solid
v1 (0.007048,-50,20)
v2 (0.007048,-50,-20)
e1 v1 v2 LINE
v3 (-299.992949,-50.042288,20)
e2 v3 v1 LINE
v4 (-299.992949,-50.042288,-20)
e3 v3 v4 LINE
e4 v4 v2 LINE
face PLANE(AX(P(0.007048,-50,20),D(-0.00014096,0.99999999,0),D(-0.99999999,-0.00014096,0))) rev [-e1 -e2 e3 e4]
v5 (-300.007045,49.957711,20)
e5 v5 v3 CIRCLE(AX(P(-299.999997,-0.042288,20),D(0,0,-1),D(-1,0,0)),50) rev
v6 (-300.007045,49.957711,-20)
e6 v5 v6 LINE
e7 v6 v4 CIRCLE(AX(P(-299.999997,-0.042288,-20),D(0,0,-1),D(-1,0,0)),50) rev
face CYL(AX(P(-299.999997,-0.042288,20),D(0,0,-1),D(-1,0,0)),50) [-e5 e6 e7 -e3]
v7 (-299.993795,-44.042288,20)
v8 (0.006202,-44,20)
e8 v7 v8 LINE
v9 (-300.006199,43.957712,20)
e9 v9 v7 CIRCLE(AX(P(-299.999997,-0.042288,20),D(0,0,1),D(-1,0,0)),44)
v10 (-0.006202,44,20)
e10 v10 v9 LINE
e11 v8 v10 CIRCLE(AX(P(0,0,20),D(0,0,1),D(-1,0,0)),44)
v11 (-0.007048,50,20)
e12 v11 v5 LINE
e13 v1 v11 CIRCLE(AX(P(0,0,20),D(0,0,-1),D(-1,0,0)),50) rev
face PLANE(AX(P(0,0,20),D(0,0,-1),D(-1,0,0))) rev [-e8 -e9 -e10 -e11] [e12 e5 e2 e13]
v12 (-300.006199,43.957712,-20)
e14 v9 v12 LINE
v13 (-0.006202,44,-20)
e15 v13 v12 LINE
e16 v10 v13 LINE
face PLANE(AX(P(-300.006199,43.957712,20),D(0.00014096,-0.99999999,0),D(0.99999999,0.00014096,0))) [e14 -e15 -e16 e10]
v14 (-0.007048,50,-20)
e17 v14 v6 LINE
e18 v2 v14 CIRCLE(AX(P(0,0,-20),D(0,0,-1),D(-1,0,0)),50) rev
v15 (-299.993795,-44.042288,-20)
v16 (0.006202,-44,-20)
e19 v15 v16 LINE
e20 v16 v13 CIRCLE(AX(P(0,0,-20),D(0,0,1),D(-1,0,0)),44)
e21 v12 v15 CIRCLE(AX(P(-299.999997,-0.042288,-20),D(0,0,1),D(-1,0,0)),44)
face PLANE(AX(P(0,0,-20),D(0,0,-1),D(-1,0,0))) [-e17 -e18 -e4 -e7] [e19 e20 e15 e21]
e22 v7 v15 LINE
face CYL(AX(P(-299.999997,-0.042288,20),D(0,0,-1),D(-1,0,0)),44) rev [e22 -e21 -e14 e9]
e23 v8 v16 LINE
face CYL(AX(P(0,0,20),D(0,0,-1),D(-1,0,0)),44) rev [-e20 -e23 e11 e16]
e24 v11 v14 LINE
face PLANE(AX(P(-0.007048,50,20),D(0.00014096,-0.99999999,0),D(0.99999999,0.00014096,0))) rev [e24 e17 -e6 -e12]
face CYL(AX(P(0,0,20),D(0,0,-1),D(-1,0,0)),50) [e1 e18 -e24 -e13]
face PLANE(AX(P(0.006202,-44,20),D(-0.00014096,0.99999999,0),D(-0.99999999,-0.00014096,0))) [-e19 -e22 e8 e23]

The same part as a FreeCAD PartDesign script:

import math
import FreeCAD as App
import Part
import Sketcher

V = App.Vector

doc = App.newDocument("Part")
body = doc.addObject("PartDesign::Body", "Body")

sketch1 = doc.addObject("Sketcher::SketchObject", "Sketch")
body.addObject(sketch1)
sketch1.AttachmentSupport = (doc.XY_Plane, [""])
sketch1.MapMode = "FlatFace"
sketch1.addGeometry([
    Part.LineSegment(V(0, 50, 0), V(-300, 50, 0)),
    Part.ArcOfCircle(Part.Circle(V(-300, 0, 0), V(0, 0, 1), 50), math.radians(90), math.radians(270)),
    Part.LineSegment(V(-300, -50, 0), V(0, -50, 0)),
    Part.ArcOfCircle(Part.Circle(V(0, 0, 0), V(0, 0, 1), 50), math.radians(-90), math.radians(90)),
    Part.LineSegment(V(-300, 44, 0), V(0, 44, 0)),
    Part.ArcOfCircle(Part.Circle(V(0, 0, 0), V(0, 0, 1), 44), math.radians(-90), math.radians(90)),
    Part.LineSegment(V(0, -44, 0), V(-300, -44, 0)),
    Part.ArcOfCircle(Part.Circle(V(-300, 0, 0), V(0, 0, 1), 44), math.radians(90), math.radians(270)),
], False)
sketch1.addConstraint([
    Sketcher.Constraint("Tangent", 0, 2, 1, 1),
    Sketcher.Constraint("Tangent", 1, 2, 2, 1),
    Sketcher.Constraint("Tangent", 2, 2, 3, 1),
    Sketcher.Constraint("Tangent", 3, 2, 0, 1),
    Sketcher.Constraint("Tangent", 4, 2, 5, 2),
    Sketcher.Constraint("Tangent", 5, 1, 6, 1),
    Sketcher.Constraint("Tangent", 6, 2, 7, 2),
    Sketcher.Constraint("Tangent", 7, 1, 4, 1),
    Sketcher.Constraint("Coincident", 3, 3, -1, 1),
    Sketcher.Constraint("Coincident", 5, 3, -1, 1),
    Sketcher.Constraint("Coincident", 7, 3, 1, 3),
    Sketcher.Constraint("Equal", 1, 3),
    Sketcher.Constraint("Equal", 5, 7),
    Sketcher.Constraint("Radius", 1, 50.0),
    Sketcher.Constraint("Radius", 5, 44.0),
    Sketcher.Constraint("Distance", 0, 300.0),
    Sketcher.Constraint("DistanceY", 1, 3, -1, 1, 0.042288),
])
pad1 = doc.addObject("PartDesign::Pad", "Pad")
body.addObject(pad1)
pad1.Profile = sketch1
pad1.Length = 40
pad1.Midplane = True

doc.recompute()
